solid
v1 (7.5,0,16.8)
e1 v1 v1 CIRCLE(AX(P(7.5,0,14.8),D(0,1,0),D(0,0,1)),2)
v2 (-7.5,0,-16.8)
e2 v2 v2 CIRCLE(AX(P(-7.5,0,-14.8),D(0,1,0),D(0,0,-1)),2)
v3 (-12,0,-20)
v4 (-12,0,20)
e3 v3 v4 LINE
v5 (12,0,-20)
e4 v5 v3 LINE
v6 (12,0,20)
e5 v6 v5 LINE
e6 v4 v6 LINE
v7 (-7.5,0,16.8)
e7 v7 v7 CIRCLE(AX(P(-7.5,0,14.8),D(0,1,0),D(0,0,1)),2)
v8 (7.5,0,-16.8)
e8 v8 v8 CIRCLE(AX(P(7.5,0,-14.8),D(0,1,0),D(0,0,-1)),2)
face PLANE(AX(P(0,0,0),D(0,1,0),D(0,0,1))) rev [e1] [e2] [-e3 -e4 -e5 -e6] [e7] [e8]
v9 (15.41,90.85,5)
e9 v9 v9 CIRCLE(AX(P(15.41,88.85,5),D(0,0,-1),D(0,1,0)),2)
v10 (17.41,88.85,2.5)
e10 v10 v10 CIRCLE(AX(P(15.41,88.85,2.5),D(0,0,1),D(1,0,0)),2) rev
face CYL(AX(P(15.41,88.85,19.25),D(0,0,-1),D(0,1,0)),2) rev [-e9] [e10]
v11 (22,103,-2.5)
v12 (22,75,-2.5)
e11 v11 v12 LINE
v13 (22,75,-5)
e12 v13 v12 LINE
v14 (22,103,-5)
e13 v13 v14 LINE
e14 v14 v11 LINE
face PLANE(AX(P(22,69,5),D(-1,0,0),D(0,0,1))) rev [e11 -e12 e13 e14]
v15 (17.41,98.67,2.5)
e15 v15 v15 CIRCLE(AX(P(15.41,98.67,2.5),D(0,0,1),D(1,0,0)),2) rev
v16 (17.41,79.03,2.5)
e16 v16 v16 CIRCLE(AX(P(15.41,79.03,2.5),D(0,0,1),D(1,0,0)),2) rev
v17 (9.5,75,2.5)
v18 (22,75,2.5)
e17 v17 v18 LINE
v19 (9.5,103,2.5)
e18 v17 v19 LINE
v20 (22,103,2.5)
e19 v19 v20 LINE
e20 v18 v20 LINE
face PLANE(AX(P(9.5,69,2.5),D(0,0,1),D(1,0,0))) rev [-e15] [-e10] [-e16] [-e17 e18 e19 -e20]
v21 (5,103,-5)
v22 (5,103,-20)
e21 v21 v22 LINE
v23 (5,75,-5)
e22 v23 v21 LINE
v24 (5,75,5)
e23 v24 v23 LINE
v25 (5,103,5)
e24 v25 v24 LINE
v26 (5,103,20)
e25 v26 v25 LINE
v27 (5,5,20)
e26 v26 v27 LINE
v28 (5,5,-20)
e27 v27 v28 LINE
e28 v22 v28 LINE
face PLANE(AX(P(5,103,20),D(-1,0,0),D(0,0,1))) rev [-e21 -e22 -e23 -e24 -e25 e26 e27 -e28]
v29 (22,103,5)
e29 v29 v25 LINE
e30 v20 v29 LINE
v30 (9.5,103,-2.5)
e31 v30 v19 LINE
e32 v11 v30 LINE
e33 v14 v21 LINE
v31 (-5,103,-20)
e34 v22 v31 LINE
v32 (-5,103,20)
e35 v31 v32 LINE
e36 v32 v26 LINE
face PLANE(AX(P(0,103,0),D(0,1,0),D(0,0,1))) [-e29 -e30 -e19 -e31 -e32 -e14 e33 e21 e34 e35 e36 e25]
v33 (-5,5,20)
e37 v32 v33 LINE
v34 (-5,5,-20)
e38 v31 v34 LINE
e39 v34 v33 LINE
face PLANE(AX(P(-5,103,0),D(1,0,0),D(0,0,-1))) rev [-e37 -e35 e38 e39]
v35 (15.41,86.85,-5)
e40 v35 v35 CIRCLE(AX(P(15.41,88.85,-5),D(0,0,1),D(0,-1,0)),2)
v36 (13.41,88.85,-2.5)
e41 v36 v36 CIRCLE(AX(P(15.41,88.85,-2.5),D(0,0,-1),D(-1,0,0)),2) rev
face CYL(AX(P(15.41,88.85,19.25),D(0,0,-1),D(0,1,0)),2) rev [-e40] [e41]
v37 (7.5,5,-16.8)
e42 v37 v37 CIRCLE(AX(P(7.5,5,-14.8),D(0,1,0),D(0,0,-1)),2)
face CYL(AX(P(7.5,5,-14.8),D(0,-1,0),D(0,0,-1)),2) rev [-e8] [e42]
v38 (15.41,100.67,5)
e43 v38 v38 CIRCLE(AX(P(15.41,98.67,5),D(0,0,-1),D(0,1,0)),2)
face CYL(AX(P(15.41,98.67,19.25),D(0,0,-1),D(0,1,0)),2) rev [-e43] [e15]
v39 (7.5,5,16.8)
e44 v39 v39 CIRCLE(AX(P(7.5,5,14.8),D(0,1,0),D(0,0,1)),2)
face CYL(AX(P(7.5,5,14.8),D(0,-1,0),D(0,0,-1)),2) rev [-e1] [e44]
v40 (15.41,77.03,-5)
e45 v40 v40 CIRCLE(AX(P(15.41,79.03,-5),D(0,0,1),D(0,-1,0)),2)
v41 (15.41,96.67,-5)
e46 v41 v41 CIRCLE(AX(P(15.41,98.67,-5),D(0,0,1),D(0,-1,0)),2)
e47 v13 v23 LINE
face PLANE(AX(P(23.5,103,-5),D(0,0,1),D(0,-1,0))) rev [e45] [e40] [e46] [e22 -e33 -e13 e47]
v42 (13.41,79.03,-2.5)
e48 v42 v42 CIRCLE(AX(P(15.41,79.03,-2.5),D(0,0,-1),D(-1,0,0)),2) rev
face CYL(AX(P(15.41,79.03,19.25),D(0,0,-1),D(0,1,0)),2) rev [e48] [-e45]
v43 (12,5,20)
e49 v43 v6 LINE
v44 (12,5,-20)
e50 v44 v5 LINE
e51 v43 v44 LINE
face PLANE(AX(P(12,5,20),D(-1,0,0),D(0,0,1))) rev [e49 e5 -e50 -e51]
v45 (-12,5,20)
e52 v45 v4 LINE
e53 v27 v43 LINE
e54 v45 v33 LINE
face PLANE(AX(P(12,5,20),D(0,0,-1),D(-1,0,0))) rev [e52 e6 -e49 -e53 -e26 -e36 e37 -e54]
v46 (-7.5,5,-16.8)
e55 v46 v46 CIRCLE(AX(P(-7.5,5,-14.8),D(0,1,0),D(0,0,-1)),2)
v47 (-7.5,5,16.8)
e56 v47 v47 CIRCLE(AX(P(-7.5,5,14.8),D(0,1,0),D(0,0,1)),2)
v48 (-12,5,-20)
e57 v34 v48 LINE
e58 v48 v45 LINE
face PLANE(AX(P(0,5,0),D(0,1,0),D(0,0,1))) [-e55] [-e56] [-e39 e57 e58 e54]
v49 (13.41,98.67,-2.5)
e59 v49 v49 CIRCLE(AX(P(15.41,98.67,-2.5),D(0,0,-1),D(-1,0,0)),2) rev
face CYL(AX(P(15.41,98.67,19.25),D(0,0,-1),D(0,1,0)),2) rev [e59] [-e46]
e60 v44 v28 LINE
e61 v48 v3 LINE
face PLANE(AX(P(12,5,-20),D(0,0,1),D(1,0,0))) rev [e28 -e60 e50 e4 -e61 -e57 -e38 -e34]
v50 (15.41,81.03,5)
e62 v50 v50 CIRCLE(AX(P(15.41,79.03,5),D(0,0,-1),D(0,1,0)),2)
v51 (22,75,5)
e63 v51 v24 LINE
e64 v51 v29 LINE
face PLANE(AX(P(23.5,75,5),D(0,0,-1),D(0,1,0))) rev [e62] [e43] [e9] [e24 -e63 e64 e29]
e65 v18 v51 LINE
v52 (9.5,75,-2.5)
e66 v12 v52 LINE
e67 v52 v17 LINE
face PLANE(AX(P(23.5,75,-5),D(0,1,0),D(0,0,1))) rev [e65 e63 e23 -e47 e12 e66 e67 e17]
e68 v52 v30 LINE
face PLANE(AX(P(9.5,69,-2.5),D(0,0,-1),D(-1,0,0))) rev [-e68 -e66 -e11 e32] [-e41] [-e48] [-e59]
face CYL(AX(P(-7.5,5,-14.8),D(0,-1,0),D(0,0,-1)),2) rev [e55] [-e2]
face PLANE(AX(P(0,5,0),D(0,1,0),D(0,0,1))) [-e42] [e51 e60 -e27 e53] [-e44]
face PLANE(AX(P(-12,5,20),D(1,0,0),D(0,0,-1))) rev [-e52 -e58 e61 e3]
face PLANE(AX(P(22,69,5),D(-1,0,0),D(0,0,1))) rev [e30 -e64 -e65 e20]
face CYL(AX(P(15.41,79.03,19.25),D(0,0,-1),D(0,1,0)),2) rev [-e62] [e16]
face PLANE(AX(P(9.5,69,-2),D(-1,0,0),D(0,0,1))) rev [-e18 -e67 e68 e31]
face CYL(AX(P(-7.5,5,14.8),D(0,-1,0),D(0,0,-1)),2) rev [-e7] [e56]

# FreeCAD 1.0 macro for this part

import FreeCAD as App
import Part
import Sketcher

V = App.Vector


def add_polygon(sketch, points):
    """Adds a closed chain of lines whose ends are joined by coincident constraints."""
    first, n = sketch.GeometryCount, len(points)
    for a, b in zip(points, points[1:] + points[:1]):
        sketch.addGeometry(Part.LineSegment(App.Vector(*a, 0), App.Vector(*b, 0)), False)
    for i in range(n):
        sketch.addConstraint(Sketcher.Constraint("Coincident", first + i, 2, first + (i + 1) % n, 1))

doc = App.newDocument("Part")
body = doc.addObject("PartDesign::Body", "Body")

# Sketch on XZ plane
sketch1 = body.newObject("Sketcher::SketchObject", "Sketch")
sketch1.AttachmentSupport = (doc.getObject("XZ_Plane"), [""])
sketch1.MapMode = "FlatFace"
add_polygon(sketch1, [(-12, -20), (-12, 20), (12, 20), (12, -20)])  # lines 0-3
sketch1.addGeometry(Part.Circle(V(-7.5, 14.8, 0), V(0, 0, 1), 2), False)  # 4
sketch1.addGeometry(Part.Circle(V(7.5, 14.8, 0), V(0, 0, 1), 2), False)  # 5
sketch1.addGeometry(Part.Circle(V(-7.5, -14.8, 0), V(0, 0, 1), 2), False)  # 6
sketch1.addGeometry(Part.Circle(V(7.5, -14.8, 0), V(0, 0, 1), 2), False)  # 7
sketch1.addConstraint(Sketcher.Constraint("Vertical", 0))
sketch1.addConstraint(Sketcher.Constraint("Horizontal", 1))
sketch1.addConstraint(Sketcher.Constraint("Vertical", 2))
sketch1.addConstraint(Sketcher.Constraint("Horizontal", 3))
sketch1.addConstraint(Sketcher.Constraint("Equal", 4, 5))
sketch1.addConstraint(Sketcher.Constraint("Equal", 5, 6))
sketch1.addConstraint(Sketcher.Constraint("Equal", 6, 7))
sketch1.addConstraint(Sketcher.Constraint("Symmetric", 5, 3, 6, 3, -1, 1))
sketch1.addConstraint(Sketcher.Constraint("Symmetric", 4, 3, 7, 3, -1, 1))
sketch1.addConstraint(Sketcher.Constraint("Symmetric", 0, 2, 2, 2, -1, 1))
sketch1.addConstraint(Sketcher.Constraint("Symmetric", 4, 3, 5, 3, -2))
sketch1.addConstraint(Sketcher.Constraint("Diameter", 4, 4.0))
sketch1.addConstraint(Sketcher.Constraint("DistanceX", 1, 1, 1, 2, 24.0))
sketch1.addConstraint(Sketcher.Constraint("DistanceY", 0, 1, 0, 2, 40.0))
sketch1.addConstraint(Sketcher.Constraint("DistanceX", 4, 3, 5, 3, 15.0))
sketch1.addConstraint(Sketcher.Constraint("DistanceY", -1, 1, 4, 3, 14.8))
pad1 = body.newObject("PartDesign::Pad", "Pad")
pad1.Profile = sketch1
pad1.Length = 5
pad1.Reversed = True

# Sketch on XZ plane
sketch2 = body.newObject("Sketcher::SketchObject", "Sketch001")
sketch2.AttachmentSupport = (doc.getObject("XZ_Plane"), [""])
sketch2.MapMode = "FlatFace"
sketch2.AttachmentOffset = App.Placement(V(0, 0, -5), App.Rotation())
add_polygon(sketch2, [(-5, 20), (5, 20), (5, -20), (-5, -20)])  # lines 0-3
sketch2.addConstraint(Sketcher.Constraint("Horizontal", 0))
sketch2.addConstraint(Sketcher.Constraint("Vertical", 1))
sketch2.addConstraint(Sketcher.Constraint("Horizontal", 2))
sketch2.addConstraint(Sketcher.Constraint("Vertical", 3))
sketch2.addConstraint(Sketcher.Constraint("Symmetric", 0, 2, 2, 2, -1, 1))
sketch2.addConstraint(Sketcher.Constraint("DistanceX", 0, 1, 0, 2, 10.0))
sketch2.addConstraint(Sketcher.Constraint("DistanceY", 1, 2, 1, 1, 40.0))
pad2 = body.newObject("PartDesign::Pad", "Pad001")
pad2.Profile = sketch2
pad2.Length = 98
pad2.Reversed = True

# Sketch on YZ plane
sketch3 = body.newObject("Sketcher::SketchObject", "Sketch002")
sketch3.AttachmentSupport = (doc.getObject("YZ_Plane"), [""])
sketch3.MapMode = "FlatFace"
sketch3.AttachmentOffset = App.Placement(V(0, 0, 5), App.Rotation())
add_polygon(sketch3, [(103, 5), (75, 5), (75, -5), (103, -5)])  # lines 0-3
sketch3.addConstraint(Sketcher.Constraint("Horizontal", 0))
sketch3.addConstraint(Sketcher.Constraint("Vertical", 1))
sketch3.addConstraint(Sketcher.Constraint("Horizontal", 2))
sketch3.addConstraint(Sketcher.Constraint("Vertical", 3))
sketch3.addConstraint(Sketcher.Constraint("DistanceX", 0, 2, 0, 1, 28.0))
sketch3.addConstraint(Sketcher.Constraint("DistanceY", 1, 2, 1, 1, 10.0))
sketch3.addConstraint(Sketcher.Constraint("DistanceX", -1, 1, 0, 2, 75.0))
sketch3.addConstraint(Sketcher.Constraint("DistanceY", -1, 1, 0, 2, 5.0))
pad3 = body.newObject("PartDesign::Pad", "Pad002")
pad3.Profile = sketch3
pad3.Length = 18.5

# Sketch on XY plane
sketch4 = body.newObject("Sketcher::SketchObject", "Sketch003")
sketch4.AttachmentSupport = (doc.getObject("XY_Plane"), [""])
sketch4.MapMode = "FlatFace"
sketch4.AttachmentOffset = App.Placement(V(0, 0, -5), App.Rotation())
sketch4.addGeometry(Part.Circle(V(15.4, 98.7, 0), V(0, 0, 1), 2), False)
sketch4.addGeometry(Part.Circle(V(15.4, 88.8, 0), V(0, 0, 1), 2), False)
sketch4.addGeometry(Part.Circle(V(15.4, 79, 0), V(0, 0, 1), 2), False)
sketch4.addConstraint(Sketcher.Constraint("Equal", 0, 1))
sketch4.addConstraint(Sketcher.Constraint("Equal", 1, 2))
sketch4.addConstraint(Sketcher.Constraint("Vertical", 0, 3, 1, 3))
sketch4.addConstraint(Sketcher.Constraint("Vertical", 1, 3, 2, 3))
sketch4.addConstraint(Sketcher.Constraint("Diameter", 0, 4.0))
sketch4.addConstraint(Sketcher.Constraint("DistanceX", -1, 1, 0, 3, 15.41))
sketch4.addConstraint(Sketcher.Constraint("DistanceY", -1, 1, 0, 3, 98.67))
sketch4.addConstraint(Sketcher.Constraint("DistanceY", -1, 1, 1, 3, 88.85))
sketch4.addConstraint(Sketcher.Constraint("DistanceY", -1, 1, 2, 3, 79.03))
pocket1 = body.newObject("PartDesign::Pocket", "Pocket")
pocket1.Profile = sketch4
pocket1.Length = 48.5
pocket1.Midplane = True

# Sketch on XY plane
sketch5 = body.newObject("Sketcher::SketchObject", "Sketch004")
sketch5.AttachmentSupport = (doc.getObject("XY_Plane"), [""])
sketch5.MapMode = "FlatFace"
add_polygon(sketch5, [(12, 103), (12, 75), (24, 75), (24, 103)])  # lines 0-3
sketch5.addConstraint(Sketcher.Constraint("Vertical", 0))
sketch5.addConstraint(Sketcher.Constraint("Horizontal", 1))
sketch5.addConstraint(Sketcher.Constraint("Vertical", 2))
sketch5.addConstraint(Sketcher.Constraint("Horizontal", 3))
sketch5.addConstraint(Sketcher.Constraint("DistanceX", 1, 1, 1, 2, 12.0))
sketch5.addConstraint(Sketcher.Constraint("DistanceY", 0, 2, 0, 1, 28.0))
sketch5.addConstraint(Sketcher.Constraint("DistanceY", -1, 1, 0, 2, 75.0))
sketch5.addConstraint(Sketcher.Constraint("DistanceX", -1, 1, 0, 2, 11.5))
pocket2 = body.newObject("PartDesign::Pocket", "Pocket001")
pocket2.Profile = sketch5
pocket2.Length = 4
pocket2.Midplane = True

# Sketch on XZ plane
sketch6 = body.newObject("Sketcher::SketchObject", "Sketch005")
sketch6.AttachmentSupport = (doc.getObject("XZ_Plane"), [""])
sketch6.MapMode = "FlatFace"
sketch6.AttachmentOffset = App.Placement(V(0, 0, -103), App.Rotation())
add_polygon(sketch6, [(9.5, -2), (9.5, 2), (11.5, 2), (11.5, -2)])  # lines 0-3
add_polygon(sketch6, [(23.5, -5), (22, -5), (22, 5), (23.5, 5)])  # lines 4-7
sketch6.addConstraint(Sketcher.Constraint("Vertical", 0))
sketch6.addConstraint(Sketcher.Constraint("Horizontal", 1))
sketch6.addConstraint(Sketcher.Constraint("Vertical", 2))
sketch6.addConstraint(Sketcher.Constraint("Horizontal", 3))
sketch6.addConstraint(Sketcher.Constraint("Horizontal", 4))
sketch6.addConstraint(Sketcher.Constraint("Vertical", 5))
sketch6.addConstraint(Sketcher.Constraint("Horizontal", 6))
sketch6.addConstraint(Sketcher.Constraint("Vertical", 7))
sketch6.addConstraint(Sketcher.Constraint("DistanceX", 1, 1, 1, 2, 2.0))
sketch6.addConstraint(Sketcher.Constraint("DistanceY", 0, 1, 0, 2, 4.0))
sketch6.addConstraint(Sketcher.Constraint("DistanceY", 5, 1, 5, 2, 10.0))
sketch6.addConstraint(Sketcher.Constraint("DistanceX", 4, 2, 4, 1, 1.5))
sketch6.addConstraint(Sketcher.Constraint("DistanceY", -1, 1, 0, 2, 2.0))
sketch6.addConstraint(Sketcher.Constraint("DistanceX", -1, 1, 4, 2, 22.0))
sketch6.addConstraint(Sketcher.Constraint("DistanceY", 4, 2, -1, 1, 5.0))
sketch6.addConstraint(Sketcher.Constraint("DistanceX", 1, 2, 6, 2, 12.0))
pocket3 = body.newObject("PartDesign::Pocket", "Pocket002")
pocket3.Profile = sketch6
pocket3.Length = 34
pocket3.Reversed = True

# Sketch on XZ plane
sketch7 = body.newObject("Sketcher::SketchObject", "Sketch006")
sketch7.AttachmentSupport = (doc.getObject("XZ_Plane"), [""])
sketch7.MapMode = "FlatFace"
sketch7.AttachmentOffset = App.Placement(V(0, 0, -103), App.Rotation())
add_polygon(sketch7, [(9.5, -2.5), (9.5, -2), (22, -2), (22, -2.5)])  # lines 0-3
add_polygon(sketch7, [(9.5, 2), (9.5, 2.5), (22, 2.5), (22, 2)])  # lines 4-7
sketch7.addConstraint(Sketcher.Constraint("Vertical", 0))
sketch7.addConstraint(Sketcher.Constraint("Horizontal", 1))
sketch7.addConstraint(Sketcher.Constraint("Vertical", 2))
sketch7.addConstraint(Sketcher.Constraint("Horizontal", 3))
sketch7.addConstraint(Sketcher.Constraint("Vertical", 4))
sketch7.addConstraint(Sketcher.Constraint("Horizontal", 5))
sketch7.addConstraint(Sketcher.Constraint("Vertical", 6))
sketch7.addConstraint(Sketcher.Constraint("Horizontal", 7))
sketch7.addConstraint(Sketcher.Constraint("Symmetric", 3, 2, 4, 2, -1))
sketch7.addConstraint(Sketcher.Constraint("Symmetric", 1, 2, 6, 2, -1))
sketch7.addConstraint(Sketcher.Constraint("DistanceX", 1, 1, 1, 2, 12.5))
sketch7.addConstraint(Sketcher.Constraint("DistanceY", 0, 1, 0, 2, 0.5))
sketch7.addConstraint(Sketcher.Constraint("DistanceY", 0, 2, -1, 1, 2.0))
sketch7.addConstraint(Sketcher.Constraint("DistanceX", -1, 1, 1, 2, 22.0))
pocket4 = body.newObject("PartDesign::Pocket", "Pocket003")
pocket4.Profile = sketch7
pocket4.Length = 34
pocket4.Reversed = True

doc.recompute()
